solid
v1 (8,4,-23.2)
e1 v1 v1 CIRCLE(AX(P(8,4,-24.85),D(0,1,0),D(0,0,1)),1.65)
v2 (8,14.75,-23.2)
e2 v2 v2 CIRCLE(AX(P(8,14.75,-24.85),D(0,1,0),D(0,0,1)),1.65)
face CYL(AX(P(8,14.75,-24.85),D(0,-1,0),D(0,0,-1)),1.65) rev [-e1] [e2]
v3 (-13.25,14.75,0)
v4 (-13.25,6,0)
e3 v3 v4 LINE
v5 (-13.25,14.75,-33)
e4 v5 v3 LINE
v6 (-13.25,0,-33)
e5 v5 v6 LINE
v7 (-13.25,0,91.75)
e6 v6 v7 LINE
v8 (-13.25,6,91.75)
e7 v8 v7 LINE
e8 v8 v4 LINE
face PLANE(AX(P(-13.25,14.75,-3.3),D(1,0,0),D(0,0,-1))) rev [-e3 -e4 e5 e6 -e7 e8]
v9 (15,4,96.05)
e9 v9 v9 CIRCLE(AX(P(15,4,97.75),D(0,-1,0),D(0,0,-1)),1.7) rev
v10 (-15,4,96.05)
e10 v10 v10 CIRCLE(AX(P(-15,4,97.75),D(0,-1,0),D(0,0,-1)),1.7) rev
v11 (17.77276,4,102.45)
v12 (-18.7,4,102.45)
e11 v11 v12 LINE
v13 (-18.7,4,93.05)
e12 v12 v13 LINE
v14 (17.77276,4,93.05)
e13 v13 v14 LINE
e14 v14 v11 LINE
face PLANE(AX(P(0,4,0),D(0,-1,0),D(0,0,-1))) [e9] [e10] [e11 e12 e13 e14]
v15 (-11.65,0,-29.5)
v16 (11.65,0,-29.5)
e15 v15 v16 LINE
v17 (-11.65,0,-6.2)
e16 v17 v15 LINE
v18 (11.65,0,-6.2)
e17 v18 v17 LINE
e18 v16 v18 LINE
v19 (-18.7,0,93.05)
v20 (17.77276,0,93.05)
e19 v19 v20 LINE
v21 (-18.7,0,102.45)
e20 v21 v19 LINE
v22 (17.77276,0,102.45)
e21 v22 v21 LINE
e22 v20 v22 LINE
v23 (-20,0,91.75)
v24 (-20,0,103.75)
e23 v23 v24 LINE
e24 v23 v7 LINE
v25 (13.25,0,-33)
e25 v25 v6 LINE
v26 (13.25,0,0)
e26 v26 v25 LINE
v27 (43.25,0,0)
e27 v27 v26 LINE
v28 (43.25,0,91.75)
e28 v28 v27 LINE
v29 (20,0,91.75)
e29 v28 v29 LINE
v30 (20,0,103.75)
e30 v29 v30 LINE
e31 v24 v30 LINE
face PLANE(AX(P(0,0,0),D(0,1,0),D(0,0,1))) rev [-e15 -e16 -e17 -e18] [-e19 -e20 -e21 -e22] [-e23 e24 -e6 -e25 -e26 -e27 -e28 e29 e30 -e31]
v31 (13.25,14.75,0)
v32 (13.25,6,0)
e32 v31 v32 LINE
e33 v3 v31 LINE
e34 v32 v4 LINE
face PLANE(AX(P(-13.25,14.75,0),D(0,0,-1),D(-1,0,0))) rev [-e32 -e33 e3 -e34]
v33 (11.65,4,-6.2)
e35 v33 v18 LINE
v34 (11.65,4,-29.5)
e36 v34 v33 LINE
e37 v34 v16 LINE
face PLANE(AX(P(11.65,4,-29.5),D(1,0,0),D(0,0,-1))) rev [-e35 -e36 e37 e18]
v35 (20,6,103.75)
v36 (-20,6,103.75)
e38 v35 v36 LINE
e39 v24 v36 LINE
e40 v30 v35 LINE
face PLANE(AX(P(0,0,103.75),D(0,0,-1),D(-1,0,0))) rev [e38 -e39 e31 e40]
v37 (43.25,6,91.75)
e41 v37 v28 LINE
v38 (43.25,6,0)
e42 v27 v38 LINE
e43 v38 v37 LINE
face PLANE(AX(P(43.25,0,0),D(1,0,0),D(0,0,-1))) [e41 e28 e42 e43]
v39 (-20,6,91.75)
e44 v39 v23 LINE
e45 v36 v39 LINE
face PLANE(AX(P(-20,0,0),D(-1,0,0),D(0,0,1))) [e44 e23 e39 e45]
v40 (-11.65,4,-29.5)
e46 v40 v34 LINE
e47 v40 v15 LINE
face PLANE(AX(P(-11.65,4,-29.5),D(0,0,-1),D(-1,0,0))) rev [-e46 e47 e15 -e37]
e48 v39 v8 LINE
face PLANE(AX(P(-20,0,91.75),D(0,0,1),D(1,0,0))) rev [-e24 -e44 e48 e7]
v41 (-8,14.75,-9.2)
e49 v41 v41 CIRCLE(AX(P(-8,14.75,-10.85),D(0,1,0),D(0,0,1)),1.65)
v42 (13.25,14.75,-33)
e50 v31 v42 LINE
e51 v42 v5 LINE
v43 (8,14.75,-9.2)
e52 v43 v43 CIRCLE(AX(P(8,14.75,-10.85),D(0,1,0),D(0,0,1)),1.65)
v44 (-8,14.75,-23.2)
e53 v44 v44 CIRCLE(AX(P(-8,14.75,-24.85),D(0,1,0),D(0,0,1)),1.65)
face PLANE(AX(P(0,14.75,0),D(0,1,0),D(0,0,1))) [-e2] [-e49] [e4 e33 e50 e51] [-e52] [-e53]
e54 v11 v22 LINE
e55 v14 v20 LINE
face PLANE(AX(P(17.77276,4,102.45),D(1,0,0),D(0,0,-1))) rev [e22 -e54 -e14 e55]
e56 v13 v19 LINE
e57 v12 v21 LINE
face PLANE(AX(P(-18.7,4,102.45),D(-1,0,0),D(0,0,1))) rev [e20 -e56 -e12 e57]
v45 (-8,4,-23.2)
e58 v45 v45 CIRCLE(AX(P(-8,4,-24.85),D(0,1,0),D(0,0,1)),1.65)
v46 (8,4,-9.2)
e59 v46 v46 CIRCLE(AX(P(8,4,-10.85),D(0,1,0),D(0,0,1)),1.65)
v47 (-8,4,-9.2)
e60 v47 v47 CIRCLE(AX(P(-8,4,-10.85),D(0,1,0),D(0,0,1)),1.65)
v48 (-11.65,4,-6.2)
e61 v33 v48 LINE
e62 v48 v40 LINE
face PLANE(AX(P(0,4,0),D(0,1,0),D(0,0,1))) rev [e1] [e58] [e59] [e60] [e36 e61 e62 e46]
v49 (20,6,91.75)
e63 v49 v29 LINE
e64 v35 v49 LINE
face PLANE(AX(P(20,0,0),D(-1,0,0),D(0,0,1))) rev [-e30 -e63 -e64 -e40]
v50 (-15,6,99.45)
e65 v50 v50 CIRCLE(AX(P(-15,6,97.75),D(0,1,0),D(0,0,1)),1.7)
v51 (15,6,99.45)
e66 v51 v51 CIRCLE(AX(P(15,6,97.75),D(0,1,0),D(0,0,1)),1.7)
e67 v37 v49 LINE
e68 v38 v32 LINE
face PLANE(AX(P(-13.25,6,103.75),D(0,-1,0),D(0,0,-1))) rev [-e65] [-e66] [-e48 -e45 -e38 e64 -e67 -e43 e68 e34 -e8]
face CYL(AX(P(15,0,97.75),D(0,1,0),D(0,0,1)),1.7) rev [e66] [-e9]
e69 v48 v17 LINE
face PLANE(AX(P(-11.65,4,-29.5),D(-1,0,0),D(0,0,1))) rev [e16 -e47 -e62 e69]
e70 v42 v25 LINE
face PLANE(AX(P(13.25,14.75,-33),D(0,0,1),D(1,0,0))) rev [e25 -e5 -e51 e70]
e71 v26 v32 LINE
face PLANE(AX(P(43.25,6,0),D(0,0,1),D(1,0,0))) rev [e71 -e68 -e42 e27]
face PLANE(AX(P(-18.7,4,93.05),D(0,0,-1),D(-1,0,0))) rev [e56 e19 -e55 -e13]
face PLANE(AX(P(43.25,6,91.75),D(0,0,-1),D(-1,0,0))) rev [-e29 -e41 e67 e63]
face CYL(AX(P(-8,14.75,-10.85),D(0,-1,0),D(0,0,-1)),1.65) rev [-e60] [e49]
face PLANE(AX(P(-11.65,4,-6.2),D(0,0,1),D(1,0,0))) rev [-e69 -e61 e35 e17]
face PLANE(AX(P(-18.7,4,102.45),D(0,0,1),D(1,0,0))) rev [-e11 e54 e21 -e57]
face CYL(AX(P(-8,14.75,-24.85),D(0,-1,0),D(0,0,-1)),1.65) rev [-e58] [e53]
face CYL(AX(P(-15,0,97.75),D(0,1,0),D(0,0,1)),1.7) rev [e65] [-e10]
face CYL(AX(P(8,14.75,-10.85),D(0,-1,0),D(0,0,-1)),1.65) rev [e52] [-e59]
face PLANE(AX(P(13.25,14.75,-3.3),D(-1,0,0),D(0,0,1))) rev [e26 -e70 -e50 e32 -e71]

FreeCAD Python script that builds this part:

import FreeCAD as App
import Part
import Sketcher

V = App.Vector
Q = App.Units.Quantity


def add_polygon(sketch, points):
    """Adds a closed chain of lines whose ends are joined by coincident constraints."""
    first, n = sketch.GeometryCount, len(points)
    for a, b in zip(points, points[1:] + points[:1]):
        sketch.addGeometry(Part.LineSegment(App.Vector(*a, 0), App.Vector(*b, 0)), False)
    for i in range(n):
        sketch.addConstraint(Sketcher.Constraint("Coincident", first + i, 2, first + (i + 1) % n, 1))

doc = App.newDocument("Part")
body = doc.addObject("PartDesign::Body", "Body")

# Sketch on XZ plane
sketch1 = body.newObject("Sketcher::SketchObject", "Sketch")
sketch1.AttachmentSupport = (doc.getObject("XZ_Plane"), [""])
sketch1.MapMode = "FlatFace"
add_polygon(sketch1, [(-13.2, 0), (13.2, 0), (13.2, -33), (-13.2, -33)])  # lines 0-3
sketch1.addGeometry(Part.Circle(V(-8, -10.8, 0), V(0, 0, 1), 1.6), False)  # 4
sketch1.addGeometry(Part.Circle(V(8, -10.8, 0), V(0, 0, 1), 1.6), False)  # 5
sketch1.addGeometry(Part.Circle(V(-8, -24.9, 0), V(0, 0, 1), 1.6), False)  # 6
sketch1.addGeometry(Part.Circle(V(8, -24.9, 0), V(0, 0, 1), 1.6), False)  # 7
sketch1.addConstraint(Sketcher.Constraint("Horizontal", 0))
sketch1.addConstraint(Sketcher.Constraint("Vertical", 1))
sketch1.addConstraint(Sketcher.Constraint("Horizontal", 2))
sketch1.addConstraint(Sketcher.Constraint("Vertical", 3))
sketch1.addConstraint(Sketcher.Constraint("Equal", 4, 5))
sketch1.addConstraint(Sketcher.Constraint("Equal", 5, 6))
sketch1.addConstraint(Sketcher.Constraint("Equal", 6, 7))
sketch1.addConstraint(Sketcher.Constraint("Symmetric", 0, 2, 3, 2, -1, 1))
sketch1.addConstraint(Sketcher.Constraint("Symmetric", 4, 3, 5, 3, -2))
sketch1.addConstraint(Sketcher.Constraint("Symmetric", 6, 3, 7, 3, -2))
sketch1.addConstraint(Sketcher.Constraint("Vertical", 4, 3, 6, 3))
sketch1.addConstraint(Sketcher.Constraint("Diameter", 4, Q("3.3 mm")))
sketch1.addConstraint(Sketcher.Constraint("DistanceY", 1, 2, 1, 1, Q("33 mm")))
sketch1.addConstraint(Sketcher.Constraint("DistanceX", 0, 1, 0, 2, Q("26.5 mm")))
sketch1.addConstraint(Sketcher.Constraint("DistanceX", 4, 3, -1, 1, Q("8 mm")))
sketch1.addConstraint(Sketcher.Constraint("DistanceY", 6, 3, 4, 3, Q("14 mm")))
sketch1.addConstraint(Sketcher.Constraint("DistanceY", 4, 3, -1, 1, Q("10.85 mm")))
pad1 = body.newObject("PartDesign::Pad", "Pad")
pad1.Profile = sketch1
pad1.Length = 14.75
pad1.Reversed = True

# Sketch on XY plane
sketch2 = body.newObject("Sketcher::SketchObject", "Sketch001")
sketch2.AttachmentSupport = (doc.getObject("XY_Plane"), [""])
sketch2.MapMode = "FlatFace"
add_polygon(sketch2, [(-13, 6), (-13, 0), (13, 0), (13, 6)])  # lines 0-3
sketch2.addConstraint(Sketcher.Constraint("Vertical", 0))
sketch2.addConstraint(Sketcher.Constraint("Horizontal", 1))
sketch2.addConstraint(Sketcher.Constraint("Vertical", 2))
sketch2.addConstraint(Sketcher.Constraint("Horizontal", 3))
sketch2.addConstraint(Sketcher.Constraint("Symmetric", 0, 2, 1, 2, -1, 1))
sketch2.addConstraint(Sketcher.Constraint("DistanceY", 0, 2, 0, 1, Q("6 mm")))
sketch2.addConstraint(Sketcher.Constraint("DistanceX", 1, 1, 1, 2, Q("26.5 mm")))
pad2 = body.newObject("PartDesign::Pad", "Pad001")
pad2.Profile = sketch2
pad2.Length = 103.75

# Sketch on YZ plane
sketch3 = body.newObject("Sketcher::SketchObject", "Sketch002")
sketch3.AttachmentSupport = (doc.getObject("YZ_Plane"), [""])
sketch3.MapMode = "FlatFace"
sketch3.AttachmentOffset = App.Placement(V(0, 0, -13.25), App.Rotation())
add_polygon(sketch3, [(6, 92), (0, 92), (0, 104), (6, 104)])  # lines 0-3
sketch3.addConstraint(Sketcher.Constraint("Horizontal", 0))
sketch3.addConstraint(Sketcher.Constraint("Vertical", 1))
sketch3.addConstraint(Sketcher.Constraint("Horizontal", 2))
sketch3.addConstraint(Sketcher.Constraint("Vertical", 3))
sketch3.addConstraint(Sketcher.Constraint("PointOnObject", 0, 2, -2))
sketch3.addConstraint(Sketcher.Constraint("DistanceX", 0, 2, 0, 1, Q("6 mm")))
sketch3.addConstraint(Sketcher.Constraint("DistanceY", 1, 1, 1, 2, Q("12 mm")))
sketch3.addConstraint(Sketcher.Constraint("DistanceY", -1, 1, 0, 2, Q("91.75 mm")))
pad3 = body.newObject("PartDesign::Pad", "Pad002")
pad3.Profile = sketch3
pad3.Type = "TwoLengths"
pad3.Length = 6.75
pad3.Length2 = 33.25
pad3.Reversed = True

# Sketch on XZ plane
sketch4 = body.newObject("Sketcher::SketchObject", "Sketch003")
sketch4.AttachmentSupport = (doc.getObject("XZ_Plane"), [""])
sketch4.MapMode = "FlatFace"
sketch4.AttachmentOffset = App.Placement(V(0, 0, -6), App.Rotation())
sketch4.addGeometry(Part.Circle(V(-15, 97.8, 0), V(0, 0, 1), 1.7), False)
sketch4.addGeometry(Part.Circle(V(15, 97.8, 0), V(0, 0, 1), 1.7), False)
sketch4.addConstraint(Sketcher.Constraint("Equal", 0, 1))
sketch4.addConstraint(Sketcher.Constraint("Symmetric", 0, 3, 1, 3, -2))
sketch4.addConstraint(Sketcher.Constraint("Diameter", 0, Q("3.4 mm")))
sketch4.addConstraint(Sketcher.Constraint("DistanceX", 0, 3, -1, 1, Q("15 mm")))
sketch4.addConstraint(Sketcher.Constraint("DistanceY", -1, 1, 0, 3, Q("97.75 mm")))
pocket1 = body.newObject("PartDesign::Pocket", "Pocket")
pocket1.Profile = sketch4
pocket1.Type = "ThroughAll"
pocket1.Reversed = True

# Sketch on XZ plane
sketch5 = body.newObject("Sketcher::SketchObject", "Sketch004")
sketch5.AttachmentSupport = (doc.getObject("XZ_Plane"), [""])
sketch5.MapMode = "FlatFace"
add_polygon(sketch5, [(-12, -6), (-12, -30), (12, -30), (12, -6)])  # lines 0-3
sketch5.addConstraint(Sketcher.Constraint("Vertical", 0))
sketch5.addConstraint(Sketcher.Constraint("Horizontal", 1))
sketch5.addConstraint(Sketcher.Constraint("Vertical", 2))
sketch5.addConstraint(Sketcher.Constraint("Horizontal", 3))
sketch5.addConstraint(Sketcher.Constraint("Equal", 3, 0))
sketch5.addConstraint(Sketcher.Constraint("DistanceX", 1, 1, 1, 2, Q("23.3 mm")))
sketch5.addConstraint(Sketcher.Constraint("DistanceY", 0, 2, -1, 1, Q("29.5 mm")))
sketch5.addConstraint(Sketcher.Constraint("DistanceX", 0, 2, -1, 1, Q("11.65 mm")))
pocket2 = body.newObject("PartDesign::Pocket", "Pocket001")
pocket2.Profile = sketch5
pocket2.Length = 4

# Sketch on XZ plane
sketch6 = body.newObject("Sketcher::SketchObject", "Sketch005")
sketch6.AttachmentSupport = (doc.getObject("XZ_Plane"), [""])
sketch6.MapMode = "FlatFace"
add_polygon(sketch6, [(-19, 102), (-19, 93), (18, 93), (18, 102)])  # lines 0-3
sketch6.addConstraint(Sketcher.Constraint("Vertical", 0))
sketch6.addConstraint(Sketcher.Constraint("Horizontal", 1))
sketch6.addConstraint(Sketcher.Constraint("Vertical", 2))
sketch6.addConstraint(Sketcher.Constraint("Horizontal", 3))
sketch6.addConstraint(Sketcher.Constraint("DistanceY", 0, 2, 0, 1, Q("9.4 mm")))
sketch6.addConstraint(Sketcher.Constraint("DistanceX", 0, 2, -1, 1, Q("18.7 mm")))
sketch6.addConstraint(Sketcher.Constraint("DistanceY", -1, 1, 0, 2, Q("93.05 mm")))
sketch6.addConstraint(Sketcher.Constraint("DistanceX", 1, 1, 1, 2, Q("36.47276 mm")))
pocket3 = body.newObject("PartDesign::Pocket", "Pocket002")
pocket3.Profile = sketch6
pocket3.Length = 4

# Sketch on YZ plane
sketch7 = body.newObject("Sketcher::SketchObject", "Sketch006")
sketch7.AttachmentSupport = (doc.getObject("YZ_Plane"), [""])
sketch7.MapMode = "FlatFace"
sketch7.AttachmentOffset = App.Placement(V(0, 0, 13.25), App.Rotation())
add_polygon(sketch7, [(6, 92), (0, 92), (0, 0), (6, 0)])  # lines 0-3
sketch7.addConstraint(Sketcher.Constraint("Horizontal", 0))
sketch7.addConstraint(Sketcher.Constraint("Vertical", 1))
sketch7.addConstraint(Sketcher.Constraint("Horizontal", 2))
sketch7.addConstraint(Sketcher.Constraint("Vertical", 3))
sketch7.addConstraint(Sketcher.Constraint("Coincident", 1, 2, -1, 1))
sketch7.addConstraint(Sketcher.Constraint("DistanceX", 0, 2, 0, 1, Q("6 mm")))
sketch7.addConstraint(Sketcher.Constraint("DistanceY", 1, 2, 1, 1, Q("91.75 mm")))
pad4 = body.newObject("PartDesign::Pad", "Pad003")
pad4.Profile = sketch7
pad4.Length = 30

doc.recompute()
